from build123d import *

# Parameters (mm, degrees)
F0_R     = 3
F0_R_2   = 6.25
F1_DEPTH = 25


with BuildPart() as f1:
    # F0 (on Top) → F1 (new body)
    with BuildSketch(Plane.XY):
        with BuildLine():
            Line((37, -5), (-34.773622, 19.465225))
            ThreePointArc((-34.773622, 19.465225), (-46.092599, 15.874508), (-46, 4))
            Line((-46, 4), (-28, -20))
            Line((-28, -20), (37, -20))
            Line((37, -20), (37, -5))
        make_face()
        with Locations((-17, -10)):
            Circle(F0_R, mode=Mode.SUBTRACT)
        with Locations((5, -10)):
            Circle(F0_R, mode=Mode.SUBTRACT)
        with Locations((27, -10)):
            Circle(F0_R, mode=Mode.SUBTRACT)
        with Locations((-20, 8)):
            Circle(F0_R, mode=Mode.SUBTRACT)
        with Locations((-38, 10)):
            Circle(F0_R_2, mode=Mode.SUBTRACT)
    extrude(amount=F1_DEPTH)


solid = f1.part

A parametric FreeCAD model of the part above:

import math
import FreeCAD as App
import Part
import Sketcher
from FreeCAD import Vector
Q = App.Units.Quantity

doc = App.newDocument("Part")
body = doc.addObject("PartDesign::Body", "Body")

sketch1 = doc.addObject("Sketcher::SketchObject", "Sketch")
body.addObject(sketch1)
sketch1.AttachmentSupport = (doc.XY_Plane, [""])
sketch1.MapMode = "FlatFace"
sketch1.addGeometry([
    Part.LineSegment(Vector(37, -5, 0), Vector(-34.8, 19.5, 0)),
    Part.ArcOfCircle(Part.Circle(Vector(-38, 10, 0), Vector(0, 0, 1), 10), math.radians(71), math.radians(217)),
    Part.LineSegment(Vector(-46, 4, 0), Vector(-28, -20, 0)),
    Part.LineSegment(Vector(-28, -20, 0), Vector(37, -20, 0)),
    Part.LineSegment(Vector(37, -20, 0), Vector(37, -5, 0)),
    Part.Circle(Vector(-17, -10, 0), Vector(0, 0, 1), 3),
    Part.Circle(Vector(5, -10, 0), Vector(0, 0, 1), 3),
    Part.Circle(Vector(27, -10, 0), Vector(0, 0, 1), 3),
    Part.Circle(Vector(-20, 8, 0), Vector(0, 0, 1), 3),
    Part.Circle(Vector(-38, 10, 0), Vector(0, 0, 1), 6.2),
], False)
sketch1.addConstraint([
    Sketcher.Constraint("Tangent", 0, 2, 1, 1),
    Sketcher.Constraint("Tangent", 1, 2, 2, 1),
    Sketcher.Constraint("Coincident", 2, 2, 3, 1),
    Sketcher.Constraint("Coincident", 3, 2, 4, 1),
    Sketcher.Constraint("Coincident", 4, 2, 0, 1),
    Sketcher.Constraint("Horizontal", 3),
    Sketcher.Constraint("Vertical", 4),
    Sketcher.Constraint("Coincident", 9, 3, 1, 3),
    Sketcher.Constraint("Equal", 5, 6),
    Sketcher.Constraint("Equal", 6, 7),
    Sketcher.Constraint("Equal", 7, 8),
    Sketcher.Constraint("Horizontal", 5, 3, 6, 3),
    Sketcher.Constraint("Horizontal", 6, 3, 7, 3),
    Sketcher.Constraint("Diameter", 5, Q("6 mm")),
    Sketcher.Constraint("Radius", 1, Q("10 mm")),
    Sketcher.Constraint("Diameter", 9, Q("12.5 mm")),
    Sketcher.Constraint("DistanceX", 3, 1, 3, 2, Q("65 mm")),
    Sketcher.Constraint("DistanceY", 4, 1, 4, 2, Q("15 mm")),
    Sketcher.Constraint("Distance", 2, Q("30 mm")),
    Sketcher.Constraint("DistanceX", 1, 3, -1, 1, Q("38 mm")),
    Sketcher.Constraint("DistanceY", -1, 1, 1, 3, Q("10 mm")),
    Sketcher.Constraint("DistanceX", 5, 3, -1, 1, Q("17 mm")),
    Sketcher.Constraint("DistanceY", 5, 3, -1, 1, Q("10 mm")),
    Sketcher.Constraint("DistanceX", -1, 1, 6, 3, Q("5 mm")),
    Sketcher.Constraint("DistanceX", -1, 1, 7, 3, Q("27 mm")),
    Sketcher.Constraint("DistanceX", 8, 3, -1, 1, Q("20 mm")),
    Sketcher.Constraint("DistanceY", -1, 1, 8, 3, Q("8 mm")),
    Sketcher.Constraint("DistanceX", 1, 2, -1, 1, Q("46 mm")),
])
pad1 = doc.addObject("PartDesign::Pad", "Pad")
body.addObject(pad1)
pad1.Profile = sketch1
pad1.Length = 25

doc.recompute()
